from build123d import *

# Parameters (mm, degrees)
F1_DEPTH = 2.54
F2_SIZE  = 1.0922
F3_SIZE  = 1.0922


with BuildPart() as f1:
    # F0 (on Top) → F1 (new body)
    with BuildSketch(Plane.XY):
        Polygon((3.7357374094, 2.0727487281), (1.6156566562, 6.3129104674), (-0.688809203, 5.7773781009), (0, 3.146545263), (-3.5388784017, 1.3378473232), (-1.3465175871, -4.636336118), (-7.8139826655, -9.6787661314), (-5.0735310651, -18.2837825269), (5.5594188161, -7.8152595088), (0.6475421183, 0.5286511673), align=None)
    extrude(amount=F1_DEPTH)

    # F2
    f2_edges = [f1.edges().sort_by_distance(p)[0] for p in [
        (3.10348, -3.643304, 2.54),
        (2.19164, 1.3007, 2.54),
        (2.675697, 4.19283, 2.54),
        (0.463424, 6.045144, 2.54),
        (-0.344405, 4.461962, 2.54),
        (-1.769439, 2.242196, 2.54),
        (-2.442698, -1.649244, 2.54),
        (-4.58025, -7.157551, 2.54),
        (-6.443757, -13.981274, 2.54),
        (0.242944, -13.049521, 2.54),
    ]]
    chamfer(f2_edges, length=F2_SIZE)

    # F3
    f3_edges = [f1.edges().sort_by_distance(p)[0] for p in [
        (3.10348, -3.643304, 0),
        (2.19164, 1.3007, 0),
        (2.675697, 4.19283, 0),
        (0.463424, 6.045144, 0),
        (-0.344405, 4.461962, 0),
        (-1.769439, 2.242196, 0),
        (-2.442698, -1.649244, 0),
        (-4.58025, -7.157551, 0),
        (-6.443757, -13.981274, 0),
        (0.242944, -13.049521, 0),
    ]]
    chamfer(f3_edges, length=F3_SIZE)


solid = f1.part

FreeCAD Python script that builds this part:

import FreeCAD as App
import Part
import Sketcher
Q = App.Units.Quantity


def edges_at(feature, points):
    """Names of the edges that pass closest to the given points."""
    edges = feature.Shape.Edges
    near = lambda p: min(range(len(edges)), key=lambda i: edges[i].distToShape(Part.Vertex(*p))[0])
    return sorted({f"Edge{near(p) + 1}" for p in points})

doc = App.newDocument("Part")
body = doc.addObject("PartDesign::Body", "Body")

sketch1 = body.newObject("Sketcher::SketchObject", "Sketch")
sketch1.AttachmentSupport = (doc.getObject("XY_Plane"), [""])
sketch1.MapMode = "FlatFace"
sketch1.addGeometry(Part.LineSegment(App.Vector(3.7, 2.1, 0), App.Vector(1.6, 6.3, 0)), False)
sketch1.addGeometry(Part.LineSegment(App.Vector(1.6, 6.3, 0), App.Vector(-0.7, 5.8, 0)), False)
sketch1.addGeometry(Part.LineSegment(App.Vector(-0.7, 5.8, 0), App.Vector(0, 3.1, 0)), False)
sketch1.addGeometry(Part.LineSegment(App.Vector(0, 3.1, 0), App.Vector(-3.5, 1.3, 0)), False)
sketch1.addGeometry(Part.LineSegment(App.Vector(-3.5, 1.3, 0), App.Vector(-1.3, -4.6, 0)), False)
sketch1.addGeometry(Part.LineSegment(App.Vector(-1.3, -4.6, 0), App.Vector(-7.8, -9.7, 0)), False)
sketch1.addGeometry(Part.LineSegment(App.Vector(-7.8, -9.7, 0), App.Vector(-5.1, -18.3, 0)), False)
sketch1.addGeometry(Part.LineSegment(App.Vector(-5.1, -18.3, 0), App.Vector(5.6, -7.8, 0)), False)
sketch1.addGeometry(Part.LineSegment(App.Vector(5.6, -7.8, 0), App.Vector(0.6, 0.5, 0)), False)
sketch1.addGeometry(Part.LineSegment(App.Vector(0.6, 0.5, 0), App.Vector(3.7, 2.1, 0)), False)
sketch1.addConstraint(Sketcher.Constraint("Coincident", 0, 2, 1, 1))
sketch1.addConstraint(Sketcher.Constraint("Coincident", 1, 2, 2, 1))
sketch1.addConstraint(Sketcher.Constraint("Coincident", 2, 2, 3, 1))
sketch1.addConstraint(Sketcher.Constraint("Coincident", 3, 2, 4, 1))
sketch1.addConstraint(Sketcher.Constraint("Coincident", 4, 2, 5, 1))
sketch1.addConstraint(Sketcher.Constraint("Coincident", 5, 2, 6, 1))
sketch1.addConstraint(Sketcher.Constraint("Coincident", 6, 2, 7, 1))
sketch1.addConstraint(Sketcher.Constraint("Coincident", 7, 2, 8, 1))
sketch1.addConstraint(Sketcher.Constraint("Coincident", 8, 2, 9, 1))
sketch1.addConstraint(Sketcher.Constraint("Coincident", 9, 2, 0, 1))
sketch1.addConstraint(Sketcher.Constraint("PointOnObject", 2, 2, -2))
sketch1.addConstraint(Sketcher.Constraint("Perpendicular", 0, 9))
sketch1.addConstraint(Sketcher.Constraint("Distance", 3, 3.974299))
sketch1.addConstraint(Sketcher.Constraint("DistanceX", 5, 2, 7, 2, 13.373401))
sketch1.addConstraint(Sketcher.Constraint("DistanceY", 3, 2, 9, 2, 0.734901))
sketch1.addConstraint(Sketcher.Constraint("Distance", 2, 2.719511))
sketch1.addConstraint(Sketcher.Constraint("Distance", 4, 6.36375))
sketch1.addConstraint(Sketcher.Constraint("DistanceY", -1, 1, 0, 2, 6.31291))
sketch1.addConstraint(Sketcher.Constraint("DistanceX", 1, 2, -1, 1, 0.688809))
sketch1.addConstraint(Sketcher.Constraint("DistanceY", -1, 1, 1, 2, 5.777378))
sketch1.addConstraint(Sketcher.Constraint("DistanceX", 3, 2, -1, 1, 3.538878))
sketch1.addConstraint(Sketcher.Constraint("DistanceX", 6, 2, -1, 1, 5.073531))
sketch1.addConstraint(Sketcher.Constraint("DistanceX", -1, 1, 7, 2, 5.559419))
sketch1.addConstraint(Sketcher.Constraint("DistanceY", 7, 2, -1, 1, 7.81526))
sketch1.addConstraint(Sketcher.Constraint("DistanceY", -1, 1, 8, 2, 0.528651))
sketch1.addConstraint(Sketcher.Constraint("DistanceX", 3, 2, 4, 2, 2.192361))
sketch1.addConstraint(Sketcher.Constraint("DistanceY", 5, 2, 4, 2, 5.04243))
sketch1.addConstraint(Sketcher.Constraint("DistanceX", 5, 2, 0, 2, 9.429639))
sketch1.addConstraint(Sketcher.Constraint("DistanceY", 6, 2, 3, 2, 19.62163))
sketch1.addConstraint(Sketcher.Constraint("DistanceX", 3, 2, 8, 2, 4.186421))
pad1 = body.newObject("PartDesign::Pad", "Pad")
pad1.Profile = sketch1
pad1.Length = Q("0.1 in")
doc.recompute()

chamfer = body.newObject("PartDesign::Chamfer", "Chamfer")
chamfer.Base = (pad1, edges_at(pad1, [
    (3.103, -3.643, 2.54),
    (2.192, 1.301, 2.54),
    (2.676, 4.193, 2.54),
    (0.463, 6.045, 2.54),
    (-0.344, 4.462, 2.54),
    (-1.769, 2.242, 2.54),
    (-2.443, -1.649, 2.54),
    (-4.58, -7.158, 2.54),
    (-6.444, -13.981, 2.54),
    (0.243, -13.05, 2.54),
]))
chamfer.Size = Q("0.043 in")
doc.recompute()

chamfer2 = body.newObject("PartDesign::Chamfer", "Chamfer001")
chamfer2.Base = (chamfer, edges_at(chamfer, [
    (3.103, -3.643, 0),
    (2.192, 1.301, 0),
    (2.676, 4.193, 0),
    (0.463, 6.045, 0),
    (-0.344, 4.462, 0),
    (-1.769, 2.242, 0),
    (-2.443, -1.649, 0),
    (-4.58, -7.158, 0),
    (-6.444, -13.981, 0),
    (0.243, -13.05, 0),
]))
chamfer2.Size = Q("0.043 in")

doc.recompute()
